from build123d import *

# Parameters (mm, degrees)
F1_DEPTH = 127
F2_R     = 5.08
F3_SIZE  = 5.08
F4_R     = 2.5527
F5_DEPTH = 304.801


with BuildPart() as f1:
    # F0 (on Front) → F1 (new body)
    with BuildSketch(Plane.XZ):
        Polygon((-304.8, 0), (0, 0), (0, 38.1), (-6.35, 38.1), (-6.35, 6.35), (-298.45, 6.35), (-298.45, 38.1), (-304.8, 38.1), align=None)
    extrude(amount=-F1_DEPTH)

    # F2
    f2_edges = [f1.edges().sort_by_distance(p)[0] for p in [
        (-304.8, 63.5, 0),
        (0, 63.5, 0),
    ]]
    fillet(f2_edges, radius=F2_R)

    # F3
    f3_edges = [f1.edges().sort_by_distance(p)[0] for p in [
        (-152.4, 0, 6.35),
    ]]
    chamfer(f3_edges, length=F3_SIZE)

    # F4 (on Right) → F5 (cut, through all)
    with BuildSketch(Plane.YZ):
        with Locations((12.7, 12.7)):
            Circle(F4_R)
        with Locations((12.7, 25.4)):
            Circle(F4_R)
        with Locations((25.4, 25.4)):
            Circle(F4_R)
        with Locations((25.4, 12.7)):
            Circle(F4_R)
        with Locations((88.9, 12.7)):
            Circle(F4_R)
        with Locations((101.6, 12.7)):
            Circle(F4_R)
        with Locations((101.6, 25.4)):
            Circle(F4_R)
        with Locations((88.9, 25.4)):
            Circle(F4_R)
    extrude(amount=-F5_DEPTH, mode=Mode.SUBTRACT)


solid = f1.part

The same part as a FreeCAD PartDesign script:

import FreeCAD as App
import Part
import Sketcher
from FreeCAD import Vector
Q = App.Units.Quantity


def edges_at(feature, points):
    """Names of the edges that pass closest to the given points."""
    edges = feature.Shape.Edges
    near = lambda p: min(range(len(edges)), key=lambda i: edges[i].distToShape(Part.Vertex(*p))[0])
    return sorted({f"Edge{near(p) + 1}" for p in points})


def add_polygon(sketch, points):
    """Adds a closed chain of lines whose ends are joined by coincident constraints."""
    first, n = sketch.GeometryCount, len(points)
    for a, b in zip(points, points[1:] + points[:1]):
        sketch.addGeometry(Part.LineSegment(App.Vector(*a, 0), App.Vector(*b, 0)), False)
    for i in range(n):
        sketch.addConstraint(Sketcher.Constraint("Coincident", first + i, 2, first + (i + 1) % n, 1))

doc = App.newDocument("Part")
params = doc.addObject("Spreadsheet::Sheet", "Params")
for row, (alias, value) in enumerate([
    ("sketch1_width", "12 in"),
    ("sketch1_width2", "11.5 in"),
    ("sketch1_height", "1.5 in"),
    ("sketch1_height2", "1.25 in"),
    ("pad1_length", "5 in"),
    ("fillet_radius", "0.2 in"),
    ("chamfer_size", "0.2 in"),
    ("sketch2_diameter", "0.201 in"),
], start=1):
    params.set(f"A{row}", alias)
    params.set(f"B{row}", "=" + value)
    params.setAlias(f"B{row}", alias)

body = doc.addObject("PartDesign::Body", "Body")

# Sketch on XZ plane
sketch1 = doc.addObject("Sketcher::SketchObject", "Sketch")
body.addObject(sketch1)
sketch1.AttachmentSupport = (doc.XZ_Plane, [""])
sketch1.MapMode = "FlatFace"
add_polygon(sketch1, [(-305, 0), (0, 0), (0, 38), (-6, 38), (-6, 6), (-298, 6), (-298, 38), (-305, 38)])  # lines 0-7
sketch1.addConstraint(Sketcher.Constraint("Horizontal", 0))
sketch1.addConstraint(Sketcher.Constraint("Vertical", 1))
sketch1.addConstraint(Sketcher.Constraint("Horizontal", 2))
sketch1.addConstraint(Sketcher.Constraint("Vertical", 3))
sketch1.addConstraint(Sketcher.Constraint("Horizontal", 4))
sketch1.addConstraint(Sketcher.Constraint("Vertical", 5))
sketch1.addConstraint(Sketcher.Constraint("Horizontal", 6))
sketch1.addConstraint(Sketcher.Constraint("Vertical", 7))
sketch1.addConstraint(Sketcher.Constraint("Coincident", 0, 2, -1, 1))
sketch1.addConstraint(Sketcher.Constraint("Horizontal", 2, 2, 5, 2))
sketch1.addConstraint(Sketcher.Constraint("Equal", 2, 6))
sketch1.addConstraint(Sketcher.Constraint("DistanceX", 0, 1, 0, 2, Q("12 in")))
sketch1.addConstraint(Sketcher.Constraint("DistanceX", 4, 2, 4, 1, Q("11.5 in")))
sketch1.addConstraint(Sketcher.Constraint("DistanceY", 1, 1, 1, 2, Q("1.5 in")))
sketch1.addConstraint(Sketcher.Constraint("DistanceY", 3, 2, 3, 1, Q("1.25 in")))
sketch1.setExpression("Constraints[19]", "Params.sketch1_width")
sketch1.setExpression("Constraints[20]", "Params.sketch1_width2")
sketch1.setExpression("Constraints[21]", "Params.sketch1_height")
sketch1.setExpression("Constraints[22]", "Params.sketch1_height2")
pad1 = doc.addObject("PartDesign::Pad", "Pad")
body.addObject(pad1)
pad1.Profile = sketch1
pad1.setExpression("Length", "Params.pad1_length")
pad1.Reversed = True
doc.recompute()

fillet = doc.addObject("PartDesign::Fillet", "Fillet")
body.addObject(fillet)
fillet.Base = (pad1, edges_at(pad1, [(-304.8, 63.5, 0), (0, 63.5, 0)]))
fillet.setExpression("Radius", "Params.fillet_radius")
doc.recompute()

chamfer = doc.addObject("PartDesign::Chamfer", "Chamfer")
body.addObject(chamfer)
chamfer.Base = (fillet, edges_at(fillet, [(-152.4, 0, 6.35)]))
chamfer.setExpression("Size", "Params.chamfer_size")

# Sketch on YZ plane
sketch2 = doc.addObject("Sketcher::SketchObject", "Sketch001")
body.addObject(sketch2)
sketch2.AttachmentSupport = (doc.YZ_Plane, [""])
sketch2.MapMode = "FlatFace"
sketch2.addGeometry(Part.Circle(Vector(12.7, 12.7, 0), Vector(0, 0, 1), 2.6), False)
sketch2.addGeometry(Part.Circle(Vector(12.7, 25.4, 0), Vector(0, 0, 1), 2.6), False)
sketch2.addGeometry(Part.Circle(Vector(25.4, 25.4, 0), Vector(0, 0, 1), 2.6), False)
sketch2.addGeometry(Part.Circle(Vector(25.4, 12.7, 0), Vector(0, 0, 1), 2.6), False)
sketch2.addGeometry(Part.Circle(Vector(88.9, 12.7, 0), Vector(0, 0, 1), 2.6), False)
sketch2.addGeometry(Part.Circle(Vector(101.6, 12.7, 0), Vector(0, 0, 1), 2.6), False)
sketch2.addGeometry(Part.Circle(Vector(101.6, 25.4, 0), Vector(0, 0, 1), 2.6), False)
sketch2.addGeometry(Part.Circle(Vector(88.9, 25.4, 0), Vector(0, 0, 1), 2.6), False)
sketch2.addConstraint(Sketcher.Constraint("Equal", 0, 1))
sketch2.addConstraint(Sketcher.Constraint("Equal", 1, 2))
sketch2.addConstraint(Sketcher.Constraint("Equal", 2, 3))
sketch2.addConstraint(Sketcher.Constraint("Equal", 3, 4))
sketch2.addConstraint(Sketcher.Constraint("Equal", 4, 5))
sketch2.addConstraint(Sketcher.Constraint("Equal", 5, 6))
sketch2.addConstraint(Sketcher.Constraint("Equal", 6, 7))
sketch2.addConstraint(Sketcher.Constraint("Horizontal", 1, 3, 2, 3))
sketch2.addConstraint(Sketcher.Constraint("Horizontal", 0, 3, 3, 3))
sketch2.addConstraint(Sketcher.Constraint("Horizontal", 3, 3, 4, 3))
sketch2.addConstraint(Sketcher.Constraint("Horizontal", 4, 3, 5, 3))
sketch2.addConstraint(Sketcher.Constraint("Horizontal", 2, 3, 6, 3))
sketch2.addConstraint(Sketcher.Constraint("Horizontal", 6, 3, 7, 3))
sketch2.addConstraint(Sketcher.Constraint("Vertical", 0, 3, 1, 3))
sketch2.addConstraint(Sketcher.Constraint("Vertical", 2, 3, 3, 3))
sketch2.addConstraint(Sketcher.Constraint("Vertical", 5, 3, 6, 3))
sketch2.addConstraint(Sketcher.Constraint("Vertical", 4, 3, 7, 3))
sketch2.addConstraint(Sketcher.Constraint("Diameter", 0, Q("0.201 in")))
sketch2.addConstraint(Sketcher.Constraint("DistanceY", -1, 1, 1, 3, Q("1 in")))
sketch2.addConstraint(Sketcher.Constraint("DistanceX", -1, 1, 2, 3, Q("1 in")))
sketch2.addConstraint(Sketcher.Constraint("DistanceX", -1, 1, 5, 3, Q("4 in")))
sketch2.addConstraint(Sketcher.Constraint("DistanceX", 0, 3, 4, 3, Q("3 in")))
sketch2.addConstraint(Sketcher.Constraint("DistanceX", -1, 1, 0, 3, Q("0.5 in")))
sketch2.addConstraint(Sketcher.Constraint("DistanceY", -1, 1, 0, 3, Q("0.5 in")))
sketch2.setExpression("Constraints[17]", "Params.sketch2_diameter")
pocket1 = doc.addObject("PartDesign::Pocket", "Pocket")
body.addObject(pocket1)
pocket1.Profile = sketch2
pocket1.Type = "ThroughAll"

doc.recompute()
